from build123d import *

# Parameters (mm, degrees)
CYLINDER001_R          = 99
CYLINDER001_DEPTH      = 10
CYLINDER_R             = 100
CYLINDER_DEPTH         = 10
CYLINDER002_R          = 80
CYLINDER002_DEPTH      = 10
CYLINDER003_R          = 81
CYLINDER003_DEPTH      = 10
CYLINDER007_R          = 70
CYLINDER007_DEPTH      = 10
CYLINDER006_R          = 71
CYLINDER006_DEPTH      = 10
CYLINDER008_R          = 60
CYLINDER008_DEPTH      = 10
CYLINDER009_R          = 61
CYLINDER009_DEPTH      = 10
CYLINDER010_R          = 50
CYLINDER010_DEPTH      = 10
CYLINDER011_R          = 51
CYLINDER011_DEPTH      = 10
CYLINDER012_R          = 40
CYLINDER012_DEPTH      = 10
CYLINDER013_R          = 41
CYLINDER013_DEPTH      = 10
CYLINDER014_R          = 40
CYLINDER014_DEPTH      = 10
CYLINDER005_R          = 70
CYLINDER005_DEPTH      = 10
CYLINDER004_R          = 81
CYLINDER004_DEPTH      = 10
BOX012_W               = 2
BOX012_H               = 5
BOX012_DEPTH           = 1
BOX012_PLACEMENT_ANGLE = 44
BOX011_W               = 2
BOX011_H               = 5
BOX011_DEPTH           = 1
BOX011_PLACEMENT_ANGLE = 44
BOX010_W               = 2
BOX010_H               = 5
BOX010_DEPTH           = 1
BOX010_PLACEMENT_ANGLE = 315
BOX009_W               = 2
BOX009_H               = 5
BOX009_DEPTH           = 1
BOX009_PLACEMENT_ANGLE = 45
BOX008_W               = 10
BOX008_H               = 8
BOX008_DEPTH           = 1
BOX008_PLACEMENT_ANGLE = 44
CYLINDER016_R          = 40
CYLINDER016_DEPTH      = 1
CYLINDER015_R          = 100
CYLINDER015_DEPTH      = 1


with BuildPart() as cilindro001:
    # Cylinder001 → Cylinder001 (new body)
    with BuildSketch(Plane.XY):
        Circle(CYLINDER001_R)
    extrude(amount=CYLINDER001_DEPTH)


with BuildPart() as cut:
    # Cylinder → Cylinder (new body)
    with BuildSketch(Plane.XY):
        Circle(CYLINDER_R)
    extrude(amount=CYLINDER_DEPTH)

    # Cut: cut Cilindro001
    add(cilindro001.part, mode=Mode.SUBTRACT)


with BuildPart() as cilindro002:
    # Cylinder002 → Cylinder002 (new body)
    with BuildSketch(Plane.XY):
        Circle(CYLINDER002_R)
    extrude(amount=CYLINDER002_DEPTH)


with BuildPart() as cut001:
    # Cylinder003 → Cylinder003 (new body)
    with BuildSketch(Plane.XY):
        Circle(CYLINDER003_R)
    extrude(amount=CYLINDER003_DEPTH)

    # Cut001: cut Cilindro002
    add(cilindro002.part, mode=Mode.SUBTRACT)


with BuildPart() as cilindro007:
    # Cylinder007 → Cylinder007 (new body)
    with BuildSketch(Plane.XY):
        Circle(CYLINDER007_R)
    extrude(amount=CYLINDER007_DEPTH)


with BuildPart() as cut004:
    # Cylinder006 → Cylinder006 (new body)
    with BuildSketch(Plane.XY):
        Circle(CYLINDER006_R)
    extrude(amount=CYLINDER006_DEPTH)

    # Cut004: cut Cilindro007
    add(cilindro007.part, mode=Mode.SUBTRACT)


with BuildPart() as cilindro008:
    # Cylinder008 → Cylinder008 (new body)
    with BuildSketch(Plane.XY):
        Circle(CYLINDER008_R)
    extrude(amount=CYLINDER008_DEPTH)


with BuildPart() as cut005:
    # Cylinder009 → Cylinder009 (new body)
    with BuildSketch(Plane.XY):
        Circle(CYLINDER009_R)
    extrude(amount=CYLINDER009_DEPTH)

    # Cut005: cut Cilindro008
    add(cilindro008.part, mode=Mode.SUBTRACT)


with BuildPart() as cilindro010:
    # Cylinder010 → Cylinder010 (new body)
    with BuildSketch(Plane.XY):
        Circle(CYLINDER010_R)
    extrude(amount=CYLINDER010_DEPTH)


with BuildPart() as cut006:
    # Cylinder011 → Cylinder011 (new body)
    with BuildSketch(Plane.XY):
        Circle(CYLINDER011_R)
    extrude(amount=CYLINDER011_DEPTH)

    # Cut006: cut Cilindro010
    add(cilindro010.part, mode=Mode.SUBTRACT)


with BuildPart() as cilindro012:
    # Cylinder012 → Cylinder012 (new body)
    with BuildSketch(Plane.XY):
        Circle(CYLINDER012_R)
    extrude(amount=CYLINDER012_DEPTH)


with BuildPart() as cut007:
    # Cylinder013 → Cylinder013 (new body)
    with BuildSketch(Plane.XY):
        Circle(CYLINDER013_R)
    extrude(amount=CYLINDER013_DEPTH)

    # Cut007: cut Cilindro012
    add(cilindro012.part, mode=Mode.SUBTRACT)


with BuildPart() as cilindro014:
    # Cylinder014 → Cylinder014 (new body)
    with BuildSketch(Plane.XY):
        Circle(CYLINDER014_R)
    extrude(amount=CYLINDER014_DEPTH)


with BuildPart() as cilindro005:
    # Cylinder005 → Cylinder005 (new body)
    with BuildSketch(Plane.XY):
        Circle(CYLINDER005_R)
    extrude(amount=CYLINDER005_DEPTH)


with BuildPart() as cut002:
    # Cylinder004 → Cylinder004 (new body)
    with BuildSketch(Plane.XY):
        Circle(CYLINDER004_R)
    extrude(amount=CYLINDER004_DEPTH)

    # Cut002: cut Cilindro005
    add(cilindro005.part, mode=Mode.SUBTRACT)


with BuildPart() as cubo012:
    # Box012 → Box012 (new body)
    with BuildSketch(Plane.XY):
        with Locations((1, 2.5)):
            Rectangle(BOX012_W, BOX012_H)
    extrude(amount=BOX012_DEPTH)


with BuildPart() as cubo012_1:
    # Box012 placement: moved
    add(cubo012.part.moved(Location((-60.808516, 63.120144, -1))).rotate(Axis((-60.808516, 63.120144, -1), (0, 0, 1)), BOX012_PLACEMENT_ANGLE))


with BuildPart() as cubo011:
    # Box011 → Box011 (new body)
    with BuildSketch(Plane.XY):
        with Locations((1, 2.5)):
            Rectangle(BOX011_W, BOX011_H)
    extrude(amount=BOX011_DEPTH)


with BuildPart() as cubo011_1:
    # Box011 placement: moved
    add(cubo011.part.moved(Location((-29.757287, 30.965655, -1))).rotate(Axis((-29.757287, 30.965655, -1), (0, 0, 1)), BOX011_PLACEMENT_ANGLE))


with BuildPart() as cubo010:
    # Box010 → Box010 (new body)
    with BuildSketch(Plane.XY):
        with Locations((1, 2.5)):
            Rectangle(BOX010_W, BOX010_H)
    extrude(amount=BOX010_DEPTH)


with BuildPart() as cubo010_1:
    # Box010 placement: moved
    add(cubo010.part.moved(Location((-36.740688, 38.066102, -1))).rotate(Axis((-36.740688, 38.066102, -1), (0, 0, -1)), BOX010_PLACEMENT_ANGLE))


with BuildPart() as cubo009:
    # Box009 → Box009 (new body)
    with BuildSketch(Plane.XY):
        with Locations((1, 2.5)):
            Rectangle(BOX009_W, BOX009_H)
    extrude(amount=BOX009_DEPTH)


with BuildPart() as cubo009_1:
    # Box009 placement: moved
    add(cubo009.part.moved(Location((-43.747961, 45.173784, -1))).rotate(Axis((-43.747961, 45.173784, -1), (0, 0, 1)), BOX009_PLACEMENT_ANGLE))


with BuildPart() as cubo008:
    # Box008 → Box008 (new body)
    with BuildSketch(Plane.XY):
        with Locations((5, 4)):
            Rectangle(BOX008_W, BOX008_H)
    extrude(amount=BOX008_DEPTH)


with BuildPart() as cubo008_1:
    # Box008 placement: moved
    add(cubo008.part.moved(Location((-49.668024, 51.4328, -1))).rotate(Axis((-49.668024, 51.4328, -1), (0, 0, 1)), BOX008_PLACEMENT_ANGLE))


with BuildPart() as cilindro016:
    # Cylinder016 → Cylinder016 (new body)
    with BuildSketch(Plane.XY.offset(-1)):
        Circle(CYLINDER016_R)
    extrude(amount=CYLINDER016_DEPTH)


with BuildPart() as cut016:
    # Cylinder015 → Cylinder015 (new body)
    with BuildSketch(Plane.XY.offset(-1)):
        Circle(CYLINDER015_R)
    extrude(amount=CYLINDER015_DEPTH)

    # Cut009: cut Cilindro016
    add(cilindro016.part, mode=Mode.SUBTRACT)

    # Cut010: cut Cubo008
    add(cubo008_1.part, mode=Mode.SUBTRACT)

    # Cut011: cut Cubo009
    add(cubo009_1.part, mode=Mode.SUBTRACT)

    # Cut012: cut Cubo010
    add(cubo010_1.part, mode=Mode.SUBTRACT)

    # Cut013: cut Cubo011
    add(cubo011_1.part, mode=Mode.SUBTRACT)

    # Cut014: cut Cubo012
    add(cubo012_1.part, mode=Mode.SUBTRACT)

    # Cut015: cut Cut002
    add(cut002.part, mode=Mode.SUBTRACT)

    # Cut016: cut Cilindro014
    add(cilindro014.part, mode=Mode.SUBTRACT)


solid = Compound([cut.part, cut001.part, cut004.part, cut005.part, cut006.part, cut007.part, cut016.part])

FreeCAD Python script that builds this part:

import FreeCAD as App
import Part
import Sketcher

V = App.Vector


def add_polygon(sketch, points):
    """Adds a closed chain of lines whose ends are joined by coincident constraints."""
    first, n = sketch.GeometryCount, len(points)
    for a, b in zip(points, points[1:] + points[:1]):
        sketch.addGeometry(Part.LineSegment(App.Vector(*a, 0), App.Vector(*b, 0)), False)
    for i in range(n):
        sketch.addConstraint(Sketcher.Constraint("Coincident", first + i, 2, first + (i + 1) % n, 1))

doc = App.newDocument("Part")
body = doc.addObject("PartDesign::Body", "Body")

# Sketch on XY plane
sketch1 = body.newObject("Sketcher::SketchObject", "Sketch")
sketch1.AttachmentSupport = (doc.getObject("XY_Plane"), [""])
sketch1.MapMode = "FlatFace"
sketch1.addGeometry(Part.Circle(V(0, 0, 0), V(0, 0, 1), 99), False)
sketch1.addConstraint([
    Sketcher.Constraint("Coincident", 0, 3, -1, 1),
    Sketcher.Constraint("Diameter", 0, 198.0),
])
pad1 = body.newObject("PartDesign::Pad", "Pad")
pad1.Profile = sketch1
pad1.Length = 10
body2 = doc.addObject("PartDesign::Body", "Body001")

# Sketch on XY plane
sketch2 = body2.newObject("Sketcher::SketchObject", "Sketch001")
sketch2.AttachmentSupport = (doc.getObject("XY_Plane001"), [""])
sketch2.MapMode = "FlatFace"
sketch2.addGeometry(Part.Circle(V(0, 0, 0), V(0, 0, 1), 100), False)
sketch2.addConstraint([
    Sketcher.Constraint("Coincident", 0, 3, -1, 1),
    Sketcher.Constraint("Diameter", 0, 200.0),
])
pad2 = body2.newObject("PartDesign::Pad", "Pad001")
pad2.Profile = sketch2
pad2.Length = 10
doc.recompute()

boolean = body2.newObject("PartDesign::Boolean", "Boolean")
boolean.Type = "Cut"
boolean.addObjects([body])
body3 = doc.addObject("PartDesign::Body", "Body002")

# Sketch on XY plane
sketch3 = body3.newObject("Sketcher::SketchObject", "Sketch002")
sketch3.AttachmentSupport = (doc.getObject("XY_Plane002"), [""])
sketch3.MapMode = "FlatFace"
sketch3.addGeometry(Part.Circle(V(0, 0, 0), V(0, 0, 1), 80), False)
sketch3.addConstraint([
    Sketcher.Constraint("Coincident", 0, 3, -1, 1),
    Sketcher.Constraint("Diameter", 0, 160.0),
])
pad3 = body3.newObject("PartDesign::Pad", "Pad002")
pad3.Profile = sketch3
pad3.Length = 10
body4 = doc.addObject("PartDesign::Body", "Body003")

# Sketch on XY plane
sketch4 = body4.newObject("Sketcher::SketchObject", "Sketch003")
sketch4.AttachmentSupport = (doc.getObject("XY_Plane003"), [""])
sketch4.MapMode = "FlatFace"
sketch4.addGeometry(Part.Circle(V(0, 0, 0), V(0, 0, 1), 81), False)
sketch4.addConstraint([
    Sketcher.Constraint("Coincident", 0, 3, -1, 1),
    Sketcher.Constraint("Diameter", 0, 162.0),
])
pad4 = body4.newObject("PartDesign::Pad", "Pad003")
pad4.Profile = sketch4
pad4.Length = 10
doc.recompute()

boolean2 = body4.newObject("PartDesign::Boolean", "Boolean001")
boolean2.Type = "Cut"
boolean2.addObjects([body3])
body5 = doc.addObject("PartDesign::Body", "Body004")

# Sketch on XY plane
sketch5 = body5.newObject("Sketcher::SketchObject", "Sketch004")
sketch5.AttachmentSupport = (doc.getObject("XY_Plane004"), [""])
sketch5.MapMode = "FlatFace"
sketch5.addGeometry(Part.Circle(V(0, 0, 0), V(0, 0, 1), 70), False)
sketch5.addConstraint([
    Sketcher.Constraint("Coincident", 0, 3, -1, 1),
    Sketcher.Constraint("Diameter", 0, 140.0),
])
pad5 = body5.newObject("PartDesign::Pad", "Pad004")
pad5.Profile = sketch5
pad5.Length = 10
body6 = doc.addObject("PartDesign::Body", "Body005")

# Sketch on XY plane
sketch6 = body6.newObject("Sketcher::SketchObject", "Sketch005")
sketch6.AttachmentSupport = (doc.getObject("XY_Plane005"), [""])
sketch6.MapMode = "FlatFace"
sketch6.addGeometry(Part.Circle(V(0, 0, 0), V(0, 0, 1), 71), False)
sketch6.addConstraint([
    Sketcher.Constraint("Coincident", 0, 3, -1, 1),
    Sketcher.Constraint("Diameter", 0, 142.0),
])
pad6 = body6.newObject("PartDesign::Pad", "Pad005")
pad6.Profile = sketch6
pad6.Length = 10
doc.recompute()

boolean3 = body6.newObject("PartDesign::Boolean", "Boolean002")
boolean3.Type = "Cut"
boolean3.addObjects([body5])
body7 = doc.addObject("PartDesign::Body", "Body006")

# Sketch on XY plane
sketch7 = body7.newObject("Sketcher::SketchObject", "Sketch006")
sketch7.AttachmentSupport = (doc.getObject("XY_Plane006"), [""])
sketch7.MapMode = "FlatFace"
sketch7.addGeometry(Part.Circle(V(0, 0, 0), V(0, 0, 1), 60), False)
sketch7.addConstraint([
    Sketcher.Constraint("Coincident", 0, 3, -1, 1),
    Sketcher.Constraint("Diameter", 0, 120.0),
])
pad7 = body7.newObject("PartDesign::Pad", "Pad006")
pad7.Profile = sketch7
pad7.Length = 10
body8 = doc.addObject("PartDesign::Body", "Body007")

# Sketch on XY plane
sketch8 = body8.newObject("Sketcher::SketchObject", "Sketch007")
sketch8.AttachmentSupport = (doc.getObject("XY_Plane007"), [""])
sketch8.MapMode = "FlatFace"
sketch8.addGeometry(Part.Circle(V(0, 0, 0), V(0, 0, 1), 61), False)
sketch8.addConstraint([
    Sketcher.Constraint("Coincident", 0, 3, -1, 1),
    Sketcher.Constraint("Diameter", 0, 122.0),
])
pad8 = body8.newObject("PartDesign::Pad", "Pad007")
pad8.Profile = sketch8
pad8.Length = 10
doc.recompute()

boolean4 = body8.newObject("PartDesign::Boolean", "Boolean003")
boolean4.Type = "Cut"
boolean4.addObjects([body7])
body9 = doc.addObject("PartDesign::Body", "Body008")

# Sketch on XY plane
sketch9 = body9.newObject("Sketcher::SketchObject", "Sketch008")
sketch9.AttachmentSupport = (doc.getObject("XY_Plane008"), [""])
sketch9.MapMode = "FlatFace"
sketch9.addGeometry(Part.Circle(V(0, 0, 0), V(0, 0, 1), 50), False)
sketch9.addConstraint([
    Sketcher.Constraint("Coincident", 0, 3, -1, 1),
    Sketcher.Constraint("Diameter", 0, 100.0),
])
pad9 = body9.newObject("PartDesign::Pad", "Pad008")
pad9.Profile = sketch9
pad9.Length = 10
body10 = doc.addObject("PartDesign::Body", "Body009")

# Sketch on XY plane
sketch10 = body10.newObject("Sketcher::SketchObject", "Sketch009")
sketch10.AttachmentSupport = (doc.getObject("XY_Plane009"), [""])
sketch10.MapMode = "FlatFace"
sketch10.addGeometry(Part.Circle(V(0, 0, 0), V(0, 0, 1), 51), False)
sketch10.addConstraint([
    Sketcher.Constraint("Coincident", 0, 3, -1, 1),
    Sketcher.Constraint("Diameter", 0, 102.0),
])
pad10 = body10.newObject("PartDesign::Pad", "Pad009")
pad10.Profile = sketch10
pad10.Length = 10
doc.recompute()

boolean5 = body10.newObject("PartDesign::Boolean", "Boolean004")
boolean5.Type = "Cut"
boolean5.addObjects([body9])
body11 = doc.addObject("PartDesign::Body", "Body010")

# Sketch on XY plane
sketch11 = body11.newObject("Sketcher::SketchObject", "Sketch010")
sketch11.AttachmentSupport = (doc.getObject("XY_Plane010"), [""])
sketch11.MapMode = "FlatFace"
sketch11.addGeometry(Part.Circle(V(0, 0, 0), V(0, 0, 1), 40), False)
sketch11.addConstraint([
    Sketcher.Constraint("Coincident", 0, 3, -1, 1),
    Sketcher.Constraint("Diameter", 0, 80.0),
])
pad11 = body11.newObject("PartDesign::Pad", "Pad010")
pad11.Profile = sketch11
pad11.Length = 10
body12 = doc.addObject("PartDesign::Body", "Body011")

# Sketch on XY plane
sketch12 = body12.newObject("Sketcher::SketchObject", "Sketch011")
sketch12.AttachmentSupport = (doc.getObject("XY_Plane011"), [""])
sketch12.MapMode = "FlatFace"
sketch12.addGeometry(Part.Circle(V(0, 0, 0), V(0, 0, 1), 41), False)
sketch12.addConstraint([
    Sketcher.Constraint("Coincident", 0, 3, -1, 1),
    Sketcher.Constraint("Diameter", 0, 82.0),
])
pad12 = body12.newObject("PartDesign::Pad", "Pad011")
pad12.Profile = sketch12
pad12.Length = 10
doc.recompute()

boolean6 = body12.newObject("PartDesign::Boolean", "Boolean005")
boolean6.Type = "Cut"
boolean6.addObjects([body11])
body13 = doc.addObject("PartDesign::Body", "Body012")

# Sketch on XY plane
sketch13 = body13.newObject("Sketcher::SketchObject", "Sketch012")
sketch13.AttachmentSupport = (doc.getObject("XY_Plane012"), [""])
sketch13.MapMode = "FlatFace"
sketch13.addGeometry(Part.Circle(V(0, 0, 0), V(0, 0, 1), 40), False)
sketch13.addConstraint([
    Sketcher.Constraint("Coincident", 0, 3, -1, 1),
    Sketcher.Constraint("Diameter", 0, 80.0),
])
pad13 = body13.newObject("PartDesign::Pad", "Pad012")
pad13.Profile = sketch13
pad13.Length = 10
body14 = doc.addObject("PartDesign::Body", "Body013")

# Sketch on XY plane
sketch14 = body14.newObject("Sketcher::SketchObject", "Sketch013")
sketch14.AttachmentSupport = (doc.getObject("XY_Plane013"), [""])
sketch14.MapMode = "FlatFace"
sketch14.addGeometry(Part.Circle(V(0, 0, 0), V(0, 0, 1), 70), False)
sketch14.addConstraint([
    Sketcher.Constraint("Coincident", 0, 3, -1, 1),
    Sketcher.Constraint("Diameter", 0, 140.0),
])
pad14 = body14.newObject("PartDesign::Pad", "Pad013")
pad14.Profile = sketch14
pad14.Length = 10
body15 = doc.addObject("PartDesign::Body", "Body014")

# Sketch on XY plane
sketch15 = body15.newObject("Sketcher::SketchObject", "Sketch014")
sketch15.AttachmentSupport = (doc.getObject("XY_Plane014"), [""])
sketch15.MapMode = "FlatFace"
sketch15.addGeometry(Part.Circle(V(0, 0, 0), V(0, 0, 1), 81), False)
sketch15.addConstraint([
    Sketcher.Constraint("Coincident", 0, 3, -1, 1),
    Sketcher.Constraint("Diameter", 0, 162.0),
])
pad15 = body15.newObject("PartDesign::Pad", "Pad014")
pad15.Profile = sketch15
pad15.Length = 10
doc.recompute()

boolean7 = body15.newObject("PartDesign::Boolean", "Boolean006")
boolean7.Type = "Cut"
boolean7.addObjects([body14])
body16 = doc.addObject("PartDesign::Body", "Body015")

# Sketch on XY plane
sketch16 = body16.newObject("Sketcher::SketchObject", "Sketch015")
sketch16.AttachmentSupport = (doc.getObject("XY_Plane015"), [""])
sketch16.MapMode = "FlatFace"
add_polygon(sketch16, [(0, 5), (0, 0), (2, 0), (2, 5)])  # lines 0-3
sketch16.addConstraint([
    Sketcher.Constraint("Vertical", 0),
    Sketcher.Constraint("Horizontal", 1),
    Sketcher.Constraint("Vertical", 2),
    Sketcher.Constraint("Horizontal", 3),
    Sketcher.Constraint("Coincident", 0, 2, -1, 1),
    Sketcher.Constraint("DistanceX", 1, 1, 1, 2, 2.0),
    Sketcher.Constraint("DistanceY", 0, 2, 0, 1, 5.0),
])
pad16 = body16.newObject("PartDesign::Pad", "Pad015")
pad16.Profile = sketch16
pad16.Length = 1
body17 = doc.addObject("PartDesign::Body", "Body016")
doc.recompute()

body16.Placement = App.Placement(V(-60.808516, 63.120144, -1), App.Rotation(V(0, 0, 1), 44))
boolean8 = body17.newObject("PartDesign::Boolean", "Boolean007")
boolean8.Type = "Fuse"
boolean8.addObjects([body16])
body18 = doc.addObject("PartDesign::Body", "Body017")

# Sketch on XY plane
sketch17 = body18.newObject("Sketcher::SketchObject", "Sketch016")
sketch17.AttachmentSupport = (doc.getObject("XY_Plane017"), [""])
sketch17.MapMode = "FlatFace"
add_polygon(sketch17, [(0, 5), (0, 0), (2, 0), (2, 5)])  # lines 0-3
sketch17.addConstraint([
    Sketcher.Constraint("Vertical", 0),
    Sketcher.Constraint("Horizontal", 1),
    Sketcher.Constraint("Vertical", 2),
    Sketcher.Constraint("Horizontal", 3),
    Sketcher.Constraint("Coincident", 0, 2, -1, 1),
    Sketcher.Constraint("DistanceX", 1, 1, 1, 2, 2.0),
    Sketcher.Constraint("DistanceY", 0, 2, 0, 1, 5.0),
])
pad17 = body18.newObject("PartDesign::Pad", "Pad016")
pad17.Profile = sketch17
pad17.Length = 1
body19 = doc.addObject("PartDesign::Body", "Body018")
doc.recompute()

body18.Placement = App.Placement(V(-29.757287, 30.965655, -1), App.Rotation(V(0, 0, 1), 44))
boolean9 = body19.newObject("PartDesign::Boolean", "Boolean008")
boolean9.Type = "Fuse"
boolean9.addObjects([body18])
body20 = doc.addObject("PartDesign::Body", "Body019")

# Sketch on XY plane
sketch18 = body20.newObject("Sketcher::SketchObject", "Sketch017")
sketch18.AttachmentSupport = (doc.getObject("XY_Plane019"), [""])
sketch18.MapMode = "FlatFace"
add_polygon(sketch18, [(0, 5), (0, 0), (2, 0), (2, 5)])  # lines 0-3
sketch18.addConstraint([
    Sketcher.Constraint("Vertical", 0),
    Sketcher.Constraint("Horizontal", 1),
    Sketcher.Constraint("Vertical", 2),
    Sketcher.Constraint("Horizontal", 3),
    Sketcher.Constraint("Coincident", 0, 2, -1, 1),
    Sketcher.Constraint("DistanceX", 1, 1, 1, 2, 2.0),
    Sketcher.Constraint("DistanceY", 0, 2, 0, 1, 5.0),
])
pad18 = body20.newObject("PartDesign::Pad", "Pad017")
pad18.Profile = sketch18
pad18.Length = 1
body21 = doc.addObject("PartDesign::Body", "Body020")
doc.recompute()

body20.Placement = App.Placement(V(-36.740688, 38.066102, -1), App.Rotation(V(0, 0, -1), 315))
boolean10 = body21.newObject("PartDesign::Boolean", "Boolean009")
boolean10.Type = "Fuse"
boolean10.addObjects([body20])
body22 = doc.addObject("PartDesign::Body", "Body021")

# Sketch on XY plane
sketch19 = body22.newObject("Sketcher::SketchObject", "Sketch018")
sketch19.AttachmentSupport = (doc.getObject("XY_Plane021"), [""])
sketch19.MapMode = "FlatFace"
add_polygon(sketch19, [(0, 5), (0, 0), (2, 0), (2, 5)])  # lines 0-3
sketch19.addConstraint([
    Sketcher.Constraint("Vertical", 0),
    Sketcher.Constraint("Horizontal", 1),
    Sketcher.Constraint("Vertical", 2),
    Sketcher.Constraint("Horizontal", 3),
    Sketcher.Constraint("Coincident", 0, 2, -1, 1),
    Sketcher.Constraint("DistanceX", 1, 1, 1, 2, 2.0),
    Sketcher.Constraint("DistanceY", 0, 2, 0, 1, 5.0),
])
pad19 = body22.newObject("PartDesign::Pad", "Pad018")
pad19.Profile = sketch19
pad19.Length = 1
body23 = doc.addObject("PartDesign::Body", "Body022")
doc.recompute()

body22.Placement = App.Placement(V(-43.747961, 45.173784, -1), App.Rotation(V(0, 0, 1), 45))
boolean11 = body23.newObject("PartDesign::Boolean", "Boolean010")
boolean11.Type = "Fuse"
boolean11.addObjects([body22])
body24 = doc.addObject("PartDesign::Body", "Body023")

# Sketch on XY plane
sketch20 = body24.newObject("Sketcher::SketchObject", "Sketch019")
sketch20.AttachmentSupport = (doc.getObject("XY_Plane023"), [""])
sketch20.MapMode = "FlatFace"
add_polygon(sketch20, [(0, 8), (0, 0), (10, 0), (10, 8)])  # lines 0-3
sketch20.addConstraint([
    Sketcher.Constraint("Vertical", 0),
    Sketcher.Constraint("Horizontal", 1),
    Sketcher.Constraint("Vertical", 2),
    Sketcher.Constraint("Horizontal", 3),
    Sketcher.Constraint("Coincident", 0, 2, -1, 1),
    Sketcher.Constraint("DistanceX", 1, 1, 1, 2, 10.0),
    Sketcher.Constraint("DistanceY", 0, 2, 0, 1, 8.0),
])
pad20 = body24.newObject("PartDesign::Pad", "Pad019")
pad20.Profile = sketch20
pad20.Length = 1
body25 = doc.addObject("PartDesign::Body", "Body024")
doc.recompute()

body24.Placement = App.Placement(V(-49.668024, 51.4328, -1), App.Rotation(V(0, 0, 1), 44))
boolean12 = body25.newObject("PartDesign::Boolean", "Boolean011")
boolean12.Type = "Fuse"
boolean12.addObjects([body24])
body26 = doc.addObject("PartDesign::Body", "Body025")

# Sketch on XY plane
sketch21 = body26.newObject("Sketcher::SketchObject", "Sketch020")
sketch21.AttachmentSupport = (doc.getObject("XY_Plane025"), [""])
sketch21.MapMode = "FlatFace"
sketch21.AttachmentOffset = App.Placement(V(0, 0, -1), App.Rotation())
sketch21.addGeometry(Part.Circle(V(0, 0, 0), V(0, 0, 1), 40), False)
sketch21.addConstraint([
    Sketcher.Constraint("Coincident", 0, 3, -1, 1),
    Sketcher.Constraint("Diameter", 0, 80.0),
])
pad21 = body26.newObject("PartDesign::Pad", "Pad020")
pad21.Profile = sketch21
pad21.Length = 1
body27 = doc.addObject("PartDesign::Body", "Body026")

# Sketch on XY plane
sketch22 = body27.newObject("Sketcher::SketchObject", "Sketch021")
sketch22.AttachmentSupport = (doc.getObject("XY_Plane026"), [""])
sketch22.MapMode = "FlatFace"
sketch22.AttachmentOffset = App.Placement(V(0, 0, -1), App.Rotation())
sketch22.addGeometry(Part.Circle(V(0, 0, 0), V(0, 0, 1), 100), False)
sketch22.addConstraint([
    Sketcher.Constraint("Coincident", 0, 3, -1, 1),
    Sketcher.Constraint("Diameter", 0, 200.0),
])
pad22 = body27.newObject("PartDesign::Pad", "Pad021")
pad22.Profile = sketch22
pad22.Length = 1
doc.recompute()

boolean13 = body27.newObject("PartDesign::Boolean", "Boolean012")
boolean13.Type = "Cut"
boolean13.addObjects([body26])
doc.recompute()

boolean14 = body27.newObject("PartDesign::Boolean", "Boolean013")
boolean14.Type = "Cut"
boolean14.addObjects([body25])
doc.recompute()

boolean15 = body27.newObject("PartDesign::Boolean", "Boolean014")
boolean15.Type = "Cut"
boolean15.addObjects([body23])
doc.recompute()

boolean16 = body27.newObject("PartDesign::Boolean", "Boolean015")
boolean16.Type = "Cut"
boolean16.addObjects([body21])
doc.recompute()

boolean17 = body27.newObject("PartDesign::Boolean", "Boolean016")
boolean17.Type = "Cut"
boolean17.addObjects([body19])
doc.recompute()

boolean18 = body27.newObject("PartDesign::Boolean", "Boolean017")
boolean18.Type = "Cut"
boolean18.addObjects([body17])
doc.recompute()

boolean19 = body27.newObject("PartDesign::Boolean", "Boolean018")
boolean19.Type = "Cut"
boolean19.addObjects([body15])
doc.recompute()

boolean20 = body27.newObject("PartDesign::Boolean", "Boolean019")
boolean20.Type = "Cut"
boolean20.addObjects([body13])

doc.recompute()
